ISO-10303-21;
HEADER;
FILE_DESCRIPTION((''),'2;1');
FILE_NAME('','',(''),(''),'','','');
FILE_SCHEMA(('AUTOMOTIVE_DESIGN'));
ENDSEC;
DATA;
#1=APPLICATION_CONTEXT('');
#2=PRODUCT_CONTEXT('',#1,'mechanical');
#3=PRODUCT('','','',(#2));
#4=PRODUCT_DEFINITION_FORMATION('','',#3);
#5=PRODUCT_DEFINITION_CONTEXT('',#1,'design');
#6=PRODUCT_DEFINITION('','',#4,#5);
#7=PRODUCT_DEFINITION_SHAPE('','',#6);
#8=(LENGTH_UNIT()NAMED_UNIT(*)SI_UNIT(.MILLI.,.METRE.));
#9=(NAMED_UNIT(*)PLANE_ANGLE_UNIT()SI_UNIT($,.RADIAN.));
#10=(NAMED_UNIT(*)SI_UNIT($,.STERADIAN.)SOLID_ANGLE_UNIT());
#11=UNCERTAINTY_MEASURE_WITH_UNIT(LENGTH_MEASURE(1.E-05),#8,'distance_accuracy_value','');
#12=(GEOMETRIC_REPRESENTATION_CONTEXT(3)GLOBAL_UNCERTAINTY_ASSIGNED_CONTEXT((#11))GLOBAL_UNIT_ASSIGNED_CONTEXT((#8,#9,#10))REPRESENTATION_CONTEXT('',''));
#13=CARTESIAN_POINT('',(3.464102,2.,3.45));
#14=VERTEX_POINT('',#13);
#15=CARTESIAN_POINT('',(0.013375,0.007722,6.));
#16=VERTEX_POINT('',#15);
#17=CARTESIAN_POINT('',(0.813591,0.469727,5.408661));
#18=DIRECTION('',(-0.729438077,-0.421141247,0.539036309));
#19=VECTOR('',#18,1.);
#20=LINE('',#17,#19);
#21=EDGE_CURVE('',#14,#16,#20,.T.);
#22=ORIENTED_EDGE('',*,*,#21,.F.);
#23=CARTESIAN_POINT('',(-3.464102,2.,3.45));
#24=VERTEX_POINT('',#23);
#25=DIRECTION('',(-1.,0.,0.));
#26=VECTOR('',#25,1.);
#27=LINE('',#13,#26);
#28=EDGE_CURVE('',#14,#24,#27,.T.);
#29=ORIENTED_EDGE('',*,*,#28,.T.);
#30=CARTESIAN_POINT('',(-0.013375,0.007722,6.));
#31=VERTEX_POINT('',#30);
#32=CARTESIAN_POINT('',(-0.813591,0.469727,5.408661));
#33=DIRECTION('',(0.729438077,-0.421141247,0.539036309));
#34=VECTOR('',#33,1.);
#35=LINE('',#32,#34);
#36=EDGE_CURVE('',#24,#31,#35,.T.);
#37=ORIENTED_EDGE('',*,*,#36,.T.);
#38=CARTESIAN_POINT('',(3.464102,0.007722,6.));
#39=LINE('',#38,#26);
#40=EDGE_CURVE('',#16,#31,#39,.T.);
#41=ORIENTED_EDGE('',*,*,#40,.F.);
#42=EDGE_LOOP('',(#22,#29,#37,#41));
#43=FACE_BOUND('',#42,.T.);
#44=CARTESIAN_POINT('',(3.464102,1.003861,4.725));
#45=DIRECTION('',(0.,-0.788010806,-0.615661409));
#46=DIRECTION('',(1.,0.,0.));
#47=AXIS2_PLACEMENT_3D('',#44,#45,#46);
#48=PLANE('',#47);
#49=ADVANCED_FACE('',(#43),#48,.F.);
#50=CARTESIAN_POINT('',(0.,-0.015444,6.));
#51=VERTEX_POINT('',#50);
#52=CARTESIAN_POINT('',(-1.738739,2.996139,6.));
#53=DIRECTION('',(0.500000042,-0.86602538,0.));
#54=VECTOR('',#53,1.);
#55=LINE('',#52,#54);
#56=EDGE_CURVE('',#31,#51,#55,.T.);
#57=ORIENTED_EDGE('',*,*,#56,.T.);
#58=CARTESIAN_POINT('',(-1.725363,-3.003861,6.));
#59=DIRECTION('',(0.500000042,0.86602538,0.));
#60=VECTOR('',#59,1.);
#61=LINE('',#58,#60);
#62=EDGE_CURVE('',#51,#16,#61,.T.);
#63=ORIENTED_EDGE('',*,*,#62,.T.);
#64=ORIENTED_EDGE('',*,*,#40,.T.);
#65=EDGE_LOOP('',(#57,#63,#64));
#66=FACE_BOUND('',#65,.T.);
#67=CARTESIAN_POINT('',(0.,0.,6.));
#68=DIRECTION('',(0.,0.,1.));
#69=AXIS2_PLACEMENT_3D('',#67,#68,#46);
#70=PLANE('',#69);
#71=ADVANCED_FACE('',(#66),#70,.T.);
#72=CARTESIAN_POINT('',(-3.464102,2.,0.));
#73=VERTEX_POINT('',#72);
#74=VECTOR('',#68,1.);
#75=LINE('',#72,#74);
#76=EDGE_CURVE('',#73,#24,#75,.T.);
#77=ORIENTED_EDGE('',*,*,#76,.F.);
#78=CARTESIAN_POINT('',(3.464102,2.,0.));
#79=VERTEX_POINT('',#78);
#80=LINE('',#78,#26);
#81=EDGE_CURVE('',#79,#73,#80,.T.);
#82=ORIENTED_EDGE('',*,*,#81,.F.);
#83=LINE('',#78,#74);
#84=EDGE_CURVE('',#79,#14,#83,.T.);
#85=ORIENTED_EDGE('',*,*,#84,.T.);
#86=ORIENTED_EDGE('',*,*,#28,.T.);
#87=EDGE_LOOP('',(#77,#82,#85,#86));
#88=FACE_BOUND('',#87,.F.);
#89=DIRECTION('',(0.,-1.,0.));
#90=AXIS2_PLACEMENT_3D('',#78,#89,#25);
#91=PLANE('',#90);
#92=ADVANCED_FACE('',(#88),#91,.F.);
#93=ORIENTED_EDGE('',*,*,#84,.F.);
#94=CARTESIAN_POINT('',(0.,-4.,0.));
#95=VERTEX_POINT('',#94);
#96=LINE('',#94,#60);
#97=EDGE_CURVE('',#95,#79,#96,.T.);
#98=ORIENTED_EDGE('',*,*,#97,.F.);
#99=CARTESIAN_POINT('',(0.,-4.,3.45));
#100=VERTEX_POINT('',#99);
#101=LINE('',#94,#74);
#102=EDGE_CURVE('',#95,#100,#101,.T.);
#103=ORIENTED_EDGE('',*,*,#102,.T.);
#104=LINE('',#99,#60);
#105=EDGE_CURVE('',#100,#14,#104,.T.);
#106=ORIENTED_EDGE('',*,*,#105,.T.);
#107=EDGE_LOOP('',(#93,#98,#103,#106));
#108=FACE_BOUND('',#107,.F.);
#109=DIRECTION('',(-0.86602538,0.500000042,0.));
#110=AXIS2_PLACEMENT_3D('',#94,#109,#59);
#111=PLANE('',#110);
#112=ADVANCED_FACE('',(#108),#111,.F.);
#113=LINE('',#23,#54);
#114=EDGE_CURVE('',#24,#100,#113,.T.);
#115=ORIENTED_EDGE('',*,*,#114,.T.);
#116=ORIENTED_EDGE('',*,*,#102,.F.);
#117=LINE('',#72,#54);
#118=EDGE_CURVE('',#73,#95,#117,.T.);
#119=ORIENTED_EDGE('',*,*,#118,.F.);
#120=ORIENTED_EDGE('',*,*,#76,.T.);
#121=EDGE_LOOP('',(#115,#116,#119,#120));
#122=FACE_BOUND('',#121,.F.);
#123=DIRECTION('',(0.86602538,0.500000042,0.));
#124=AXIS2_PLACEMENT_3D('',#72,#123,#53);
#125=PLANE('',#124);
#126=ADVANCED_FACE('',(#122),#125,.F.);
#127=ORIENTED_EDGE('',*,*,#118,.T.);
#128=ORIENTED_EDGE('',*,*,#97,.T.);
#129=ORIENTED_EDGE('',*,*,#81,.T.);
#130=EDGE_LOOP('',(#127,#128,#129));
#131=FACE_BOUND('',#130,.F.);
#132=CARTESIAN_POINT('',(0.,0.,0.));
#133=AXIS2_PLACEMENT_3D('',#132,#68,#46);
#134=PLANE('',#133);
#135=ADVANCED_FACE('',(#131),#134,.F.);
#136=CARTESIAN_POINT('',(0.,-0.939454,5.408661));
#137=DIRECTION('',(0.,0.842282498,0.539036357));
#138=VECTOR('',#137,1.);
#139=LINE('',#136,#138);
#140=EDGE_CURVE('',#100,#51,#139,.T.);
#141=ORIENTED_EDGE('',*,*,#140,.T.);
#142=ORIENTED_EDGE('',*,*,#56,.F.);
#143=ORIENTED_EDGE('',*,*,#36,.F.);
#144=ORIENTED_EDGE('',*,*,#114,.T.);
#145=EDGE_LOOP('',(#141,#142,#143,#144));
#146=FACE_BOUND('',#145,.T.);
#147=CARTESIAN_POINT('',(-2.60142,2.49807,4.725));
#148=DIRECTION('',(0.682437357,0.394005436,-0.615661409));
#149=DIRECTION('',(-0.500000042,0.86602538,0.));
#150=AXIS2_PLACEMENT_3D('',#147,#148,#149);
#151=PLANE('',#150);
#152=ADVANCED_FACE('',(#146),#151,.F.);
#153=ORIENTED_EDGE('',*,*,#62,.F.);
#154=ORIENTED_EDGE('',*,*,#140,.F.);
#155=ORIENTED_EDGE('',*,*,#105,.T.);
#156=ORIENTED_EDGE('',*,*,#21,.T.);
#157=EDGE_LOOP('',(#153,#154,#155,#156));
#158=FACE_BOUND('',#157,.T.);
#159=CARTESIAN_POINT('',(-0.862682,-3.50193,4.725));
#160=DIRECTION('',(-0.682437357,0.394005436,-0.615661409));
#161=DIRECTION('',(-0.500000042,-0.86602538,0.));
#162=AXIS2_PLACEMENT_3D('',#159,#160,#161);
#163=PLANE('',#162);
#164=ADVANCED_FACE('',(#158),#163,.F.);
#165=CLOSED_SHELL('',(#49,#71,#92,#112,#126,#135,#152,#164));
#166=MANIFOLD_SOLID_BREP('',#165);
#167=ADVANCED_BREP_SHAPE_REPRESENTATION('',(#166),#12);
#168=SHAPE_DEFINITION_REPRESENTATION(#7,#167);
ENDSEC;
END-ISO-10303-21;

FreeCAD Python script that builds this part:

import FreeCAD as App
import Part
import Sketcher
Q = App.Units.Quantity


def edges_at(feature, points):
    """Names of the edges that pass closest to the given points."""
    edges = feature.Shape.Edges
    near = lambda p: min(range(len(edges)), key=lambda i: edges[i].distToShape(Part.Vertex(*p))[0])
    return sorted({f"Edge{near(p) + 1}" for p in points})


def add_polygon(sketch, points):
    """Adds a closed chain of lines whose ends are joined by coincident constraints."""
    first, n = sketch.GeometryCount, len(points)
    for a, b in zip(points, points[1:] + points[:1]):
        sketch.addGeometry(Part.LineSegment(App.Vector(*a, 0), App.Vector(*b, 0)), False)
    for i in range(n):
        sketch.addConstraint(Sketcher.Constraint("Coincident", first + i, 2, first + (i + 1) % n, 1))

doc = App.newDocument("Part")
body = doc.addObject("PartDesign::Body", "Body")

sketch1 = body.newObject("Sketcher::SketchObject", "Sketch")
sketch1.AttachmentSupport = (doc.getObject("XY_Plane"), [""])
sketch1.MapMode = "FlatFace"
add_polygon(sketch1, [(3.464102, 2), (-3.464102, 2), (0, -4)])
sketch1.addConstraint(Sketcher.Constraint("Horizontal", 0))
sketch1.addConstraint(Sketcher.Constraint("PointOnObject", 1, 2, -2))
sketch1.addConstraint(Sketcher.Constraint("Equal", 1, 2))
sketch1.addConstraint(Sketcher.Constraint("Angle", 1, Q("-59.999997 deg")))
sketch1.addConstraint(Sketcher.Constraint("DistanceY", -1, 1, 0, 2, 2.0))
sketch1.addConstraint(Sketcher.Constraint("DistanceY", 1, 2, -1, 1, 4.0))
pad1 = body.newObject("PartDesign::Pad", "Pad")
pad1.Profile = sketch1
pad1.Length = 6
doc.recompute()

chamfer = body.newObject("PartDesign::Chamfer", "Chamfer")
chamfer.Base = (pad1, edges_at(pad1, [(1.732, -1, 6), (-1.732, -1, 6), (0, 2, 6)]))
chamfer.ChamferType = "Two distances"
chamfer.Size = 2.55
chamfer.Size2 = 1.992278

doc.recompute()
